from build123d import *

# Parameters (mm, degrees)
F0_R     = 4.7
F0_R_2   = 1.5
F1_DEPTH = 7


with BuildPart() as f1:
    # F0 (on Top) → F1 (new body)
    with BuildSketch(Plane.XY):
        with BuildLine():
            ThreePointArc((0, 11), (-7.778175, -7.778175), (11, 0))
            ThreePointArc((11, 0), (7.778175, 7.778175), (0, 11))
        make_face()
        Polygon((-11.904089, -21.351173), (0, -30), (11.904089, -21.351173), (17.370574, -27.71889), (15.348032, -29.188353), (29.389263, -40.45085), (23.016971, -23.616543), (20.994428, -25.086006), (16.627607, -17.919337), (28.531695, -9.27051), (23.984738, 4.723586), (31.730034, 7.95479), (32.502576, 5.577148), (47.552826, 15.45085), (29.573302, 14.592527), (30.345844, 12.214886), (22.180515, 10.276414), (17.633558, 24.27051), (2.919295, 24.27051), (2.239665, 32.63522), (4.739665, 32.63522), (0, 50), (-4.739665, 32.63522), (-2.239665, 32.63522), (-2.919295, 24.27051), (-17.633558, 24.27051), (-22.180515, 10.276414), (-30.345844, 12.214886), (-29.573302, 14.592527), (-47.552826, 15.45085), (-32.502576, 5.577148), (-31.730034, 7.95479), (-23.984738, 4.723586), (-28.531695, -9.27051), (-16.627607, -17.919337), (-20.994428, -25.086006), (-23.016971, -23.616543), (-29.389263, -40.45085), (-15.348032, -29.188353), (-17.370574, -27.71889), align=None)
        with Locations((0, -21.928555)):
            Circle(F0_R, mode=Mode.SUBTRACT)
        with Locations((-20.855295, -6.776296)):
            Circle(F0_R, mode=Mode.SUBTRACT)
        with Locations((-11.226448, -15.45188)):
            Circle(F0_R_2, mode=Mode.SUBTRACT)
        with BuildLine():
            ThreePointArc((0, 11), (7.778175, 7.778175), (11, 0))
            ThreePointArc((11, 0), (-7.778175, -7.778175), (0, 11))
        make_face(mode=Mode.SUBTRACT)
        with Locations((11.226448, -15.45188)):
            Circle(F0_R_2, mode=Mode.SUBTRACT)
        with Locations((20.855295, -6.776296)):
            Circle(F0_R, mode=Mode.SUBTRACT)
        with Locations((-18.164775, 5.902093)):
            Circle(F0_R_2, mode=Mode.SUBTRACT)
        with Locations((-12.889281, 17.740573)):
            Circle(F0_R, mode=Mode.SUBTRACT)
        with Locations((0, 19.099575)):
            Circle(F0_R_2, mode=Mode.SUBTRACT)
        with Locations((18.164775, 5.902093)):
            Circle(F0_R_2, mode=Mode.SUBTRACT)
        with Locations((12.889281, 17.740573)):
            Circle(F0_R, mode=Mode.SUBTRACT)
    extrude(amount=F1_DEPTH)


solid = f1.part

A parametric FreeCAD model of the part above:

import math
import FreeCAD as App
import Part
import Sketcher

V = App.Vector
Q = App.Units.Quantity


def add_polygon(sketch, points):
    """Adds a closed chain of lines whose ends are joined by coincident constraints."""
    first, n = sketch.GeometryCount, len(points)
    for a, b in zip(points, points[1:] + points[:1]):
        sketch.addGeometry(Part.LineSegment(App.Vector(*a, 0), App.Vector(*b, 0)), False)
    for i in range(n):
        sketch.addConstraint(Sketcher.Constraint("Coincident", first + i, 2, first + (i + 1) % n, 1))

doc = App.newDocument("Part")
body = doc.addObject("PartDesign::Body", "Body")

# Sketch on XY plane
sketch1 = body.newObject("Sketcher::SketchObject", "Sketch")
sketch1.AttachmentSupport = (doc.getObject("XY_Plane"), [""])
sketch1.MapMode = "FlatFace"
add_polygon(sketch1, [(-11.904089, -21.351173), (0, -30), (11.904089, -21.351173), (17.370574, -27.71889), (15.348032, -29.188353), (29.389263, -40.45085), (23.016971, -23.616543), (20.994428, -25.086006), (16.627607, -17.919337), (28.531695, -9.27051), (23.984738, 4.723586), (31.730034, 7.95479), (32.502576, 5.577148), (47.552826, 15.45085), (29.573302, 14.592527), (30.345844, 12.214886), (22.180515, 10.276414), (17.633558, 24.27051), (2.919295, 24.27051), (2.239665, 32.63522), (4.739665, 32.63522), (0, 50), (-4.739665, 32.63522), (-2.239665, 32.63522), (-2.919295, 24.27051), (-17.633558, 24.27051), (-22.180515, 10.276414), (-30.345844, 12.214886), (-29.573302, 14.592527), (-47.552826, 15.45085), (-32.502576, 5.577148), (-31.730034, 7.95479), (-23.984738, 4.723586), (-28.531695, -9.27051), (-16.627607, -17.919337), (-20.994428, -25.086006), (-23.016971, -23.616543), (-29.389263, -40.45085), (-15.348032, -29.188353), (-17.370574, -27.71889)])  # lines 0-39
sketch1.addGeometry(Part.Circle(V(0, -21.928555, 0), V(0, 0, 1), 4.7), False)  # 40
sketch1.addGeometry(Part.Circle(V(-11.226448, -15.45188, 0), V(0, 0, 1), 1.5), False)  # 41
sketch1.addGeometry(Part.Circle(V(-20.855295, -6.776296, 0), V(0, 0, 1), 4.7), False)  # 42
sketch1.addGeometry(Part.Circle(V(11.226448, -15.45188, 0), V(0, 0, 1), 1.5), False)  # 43
sketch1.addGeometry(Part.Circle(V(20.855295, -6.776296, 0), V(0, 0, 1), 4.7), False)  # 44
sketch1.addGeometry(Part.Circle(V(-18.164775, 5.902093, 0), V(0, 0, 1), 1.5), False)  # 45
sketch1.addGeometry(Part.ArcOfCircle(Part.Circle(V(0, 0, 0), V(0, 0, 1), 11), math.radians(89.999999), math.radians(360.000001)), False)  # 46
sketch1.addGeometry(Part.ArcOfCircle(Part.Circle(V(0.000001, 0.000001, 0), V(0, 0, 1), 10.999999), math.radians(-0.000007), math.radians(90.000007)), False)  # 47
sketch1.addGeometry(Part.Circle(V(-12.889281, 17.740573, 0), V(0, 0, 1), 4.7), False)  # 48
sketch1.addGeometry(Part.Circle(V(0, 19.099575, 0), V(0, 0, 1), 1.5), False)  # 49
sketch1.addGeometry(Part.Circle(V(18.164775, 5.902093, 0), V(0, 0, 1), 1.5), False)  # 50
sketch1.addGeometry(Part.Circle(V(12.889281, 17.740573, 0), V(0, 0, 1), 4.7), False)  # 51
sketch1.addConstraint(Sketcher.Constraint("Tangent", 46, 1, 47, 2))
sketch1.addConstraint(Sketcher.Constraint("Coincident", 47, 1, 46, 2))
sketch1.addConstraint(Sketcher.Constraint("Horizontal", 17))
sketch1.addConstraint(Sketcher.Constraint("Horizontal", 19))
sketch1.addConstraint(Sketcher.Constraint("Horizontal", 22))
sketch1.addConstraint(Sketcher.Constraint("Horizontal", 24))
sketch1.addConstraint(Sketcher.Constraint("Coincident", 46, 3, -1, 1))
sketch1.addConstraint(Sketcher.Constraint("Equal", 40, 42))
sketch1.addConstraint(Sketcher.Constraint("Equal", 41, 43))
sketch1.addConstraint(Sketcher.Constraint("Equal", 42, 44))
sketch1.addConstraint(Sketcher.Constraint("Equal", 43, 45))
sketch1.addConstraint(Sketcher.Constraint("Equal", 44, 48))
sketch1.addConstraint(Sketcher.Constraint("Equal", 45, 49))
sketch1.addConstraint(Sketcher.Constraint("Equal", 49, 50))
sketch1.addConstraint(Sketcher.Constraint("Equal", 48, 51))
sketch1.addConstraint(Sketcher.Constraint("Symmetric", 41, 3, 43, 3, -2))
sketch1.addConstraint(Sketcher.Constraint("Symmetric", 42, 3, 44, 3, -2))
sketch1.addConstraint(Sketcher.Constraint("Symmetric", 45, 3, 50, 3, -2))
sketch1.addConstraint(Sketcher.Constraint("Symmetric", 48, 3, 51, 3, -2))
sketch1.addConstraint(Sketcher.Constraint("Symmetric", 19, 2, 21, 2, -2))
sketch1.addConstraint(Sketcher.Constraint("Symmetric", 17, 2, 23, 2, -2))
sketch1.addConstraint(Sketcher.Constraint("Symmetric", 15, 2, 25, 2, -2))
sketch1.addConstraint(Sketcher.Constraint("Symmetric", 14, 2, 26, 2, -2))
sketch1.addConstraint(Sketcher.Constraint("Symmetric", 13, 2, 27, 2, -2))
sketch1.addConstraint(Sketcher.Constraint("Symmetric", 12, 2, 28, 2, -2))
sketch1.addConstraint(Sketcher.Constraint("Symmetric", 11, 2, 29, 2, -2))
sketch1.addConstraint(Sketcher.Constraint("Symmetric", 10, 2, 30, 2, -2))
sketch1.addConstraint(Sketcher.Constraint("Symmetric", 9, 2, 31, 2, -2))
sketch1.addConstraint(Sketcher.Constraint("Symmetric", 8, 2, 32, 2, -2))
sketch1.addConstraint(Sketcher.Constraint("Symmetric", 7, 2, 33, 2, -2))
sketch1.addConstraint(Sketcher.Constraint("Symmetric", 6, 2, 34, 2, -2))
sketch1.addConstraint(Sketcher.Constraint("Symmetric", 5, 2, 35, 2, -2))
sketch1.addConstraint(Sketcher.Constraint("Symmetric", 4, 2, 36, 2, -2))
sketch1.addConstraint(Sketcher.Constraint("Symmetric", 3, 2, 37, 2, -2))
sketch1.addConstraint(Sketcher.Constraint("Symmetric", 2, 2, 38, 2, -2))
sketch1.addConstraint(Sketcher.Constraint("Symmetric", 1, 2, 39, 2, -2))
sketch1.addConstraint(Sketcher.Constraint("PointOnObject", 40, 3, -2))
sketch1.addConstraint(Sketcher.Constraint("PointOnObject", 49, 3, -2))
sketch1.addConstraint(Sketcher.Constraint("PointOnObject", 0, 2, -2))
sketch1.addConstraint(Sketcher.Constraint("PointOnObject", 20, 2, -2))
sketch1.addConstraint(Sketcher.Constraint("PointOnObject", 46, 1, -2))
sketch1.addConstraint(Sketcher.Constraint("PointOnObject", 47, 1, -1))
sketch1.addConstraint(Sketcher.Constraint("Parallel", 1, 3))
sketch1.addConstraint(Sketcher.Constraint("Parallel", 3, 6))
sketch1.addConstraint(Sketcher.Constraint("Parallel", 6, 8))
sketch1.addConstraint(Sketcher.Constraint("Parallel", 9, 11))
sketch1.addConstraint(Sketcher.Constraint("Parallel", 11, 14))
sketch1.addConstraint(Sketcher.Constraint("Parallel", 14, 16))
sketch1.addConstraint(Sketcher.Constraint("Parallel", 25, 27))
sketch1.addConstraint(Sketcher.Constraint("Equal", 19, 22))
sketch1.addConstraint(Sketcher.Constraint("Equal", 4, 5))
sketch1.addConstraint(Sketcher.Constraint("Equal", 3, 6))
sketch1.addConstraint(Sketcher.Constraint("Equal", 2, 7))
sketch1.addConstraint(Sketcher.Constraint("Equal", 1, 8))
sketch1.addConstraint(Sketcher.Constraint("Equal", 8, 9))
sketch1.addConstraint(Sketcher.Constraint("Equal", 7, 10))
sketch1.addConstraint(Sketcher.Constraint("Equal", 6, 11))
sketch1.addConstraint(Sketcher.Constraint("Equal", 5, 12))
sketch1.addConstraint(Sketcher.Constraint("Equal", 12, 13))
sketch1.addConstraint(Sketcher.Constraint("Equal", 11, 14))
sketch1.addConstraint(Sketcher.Constraint("Equal", 10, 15))
sketch1.addConstraint(Sketcher.Constraint("Equal", 9, 16))
sketch1.addConstraint(Sketcher.Constraint("Equal", 15, 18))
sketch1.addConstraint(Sketcher.Constraint("Equal", 13, 20))
sketch1.addConstraint(Sketcher.Constraint("Diameter", 41, Q("3 mm")))
sketch1.addConstraint(Sketcher.Constraint("Radius", 46, Q("11 mm")))
sketch1.addConstraint(Sketcher.Constraint("Diameter", 40, Q("9.4 mm")))
sketch1.addConstraint(Sketcher.Constraint("Angle", 0, Q("-36 deg")))
sketch1.addConstraint(Sketcher.Constraint("Angle", 9, Q("107.999998 deg")))
sketch1.addConstraint(Sketcher.Constraint("Distance", 4, Q("18 mm")))
sketch1.addConstraint(Sketcher.Constraint("DistanceX", 19, 1, 19, 2, Q("2.5 mm")))
sketch1.addConstraint(Sketcher.Constraint("DistanceY", 0, 2, -1, 1, Q("30 mm")))
sketch1.addConstraint(Sketcher.Constraint("DistanceY", -1, 1, 20, 2, Q("50 mm")))
sketch1.addConstraint(Sketcher.Constraint("Distance", 3, Q("2.5 mm")))
sketch1.addConstraint(Sketcher.Constraint("DistanceX", 44, 3, 8, 2, Q("7.6764 mm")))
sketch1.addConstraint(Sketcher.Constraint("DistanceY", 8, 2, 10, 2, Q("17.2253 mm")))
sketch1.addConstraint(Sketcher.Constraint("DistanceX", 50, 3, 11, 2, Q("14.337801 mm")))
sketch1.addConstraint(Sketcher.Constraint("DistanceY", 9, 2, 14, 2, Q("7.4913 mm")))
sketch1.addConstraint(Sketcher.Constraint("DistanceX", 17, 2, 17, 1, Q("14.714263 mm")))
sketch1.addConstraint(Sketcher.Constraint("DistanceY", 41, 3, -1, 1, Q("15.45188 mm")))
sketch1.addConstraint(Sketcher.Constraint("DistanceX", 48, 3, -1, 1, Q("12.889281 mm")))
sketch1.addConstraint(Sketcher.Constraint("DistanceX", -1, 1, 1, 2, Q("11.904089 mm")))
sketch1.addConstraint(Sketcher.Constraint("DistanceY", 2, 2, -1, 1, Q("27.71889 mm")))
sketch1.addConstraint(Sketcher.Constraint("DistanceY", 4, 2, -1, 1, Q("40.45085 mm")))
sketch1.addConstraint(Sketcher.Constraint("DistanceX", -1, 1, 5, 2, Q("23.016971 mm")))
sketch1.addConstraint(Sketcher.Constraint("DistanceY", 8, 2, -1, 1, Q("9.27051 mm")))
sketch1.addConstraint(Sketcher.Constraint("DistanceX", -1, 1, 9, 2, Q("23.984738 mm")))
sketch1.addConstraint(Sketcher.Constraint("DistanceY", -1, 1, 12, 2, Q("15.45085 mm")))
sketch1.addConstraint(Sketcher.Constraint("DistanceX", -1, 1, 16, 2, Q("17.633558 mm")))
sketch1.addConstraint(Sketcher.Constraint("DistanceY", 40, 3, 42, 3, Q("15.152259 mm")))
sketch1.addConstraint(Sketcher.Constraint("DistanceY", 42, 3, 45, 3, Q("12.678389 mm")))
sketch1.addConstraint(Sketcher.Constraint("DistanceX", 46, 3, 43, 3, Q("11.226448 mm")))
sketch1.addConstraint(Sketcher.Constraint("DistanceY", 47, 3, 45, 3, Q("5.902092 mm")))
sketch1.addConstraint(Sketcher.Constraint("DistanceY", 45, 3, 48, 3, Q("11.83848 mm")))
sketch1.addConstraint(Sketcher.Constraint("DistanceY", 42, 3, 49, 3, Q("25.875871 mm")))
pad1 = body.newObject("PartDesign::Pad", "Pad")
pad1.Profile = sketch1
pad1.Length = 7

doc.recompute()
